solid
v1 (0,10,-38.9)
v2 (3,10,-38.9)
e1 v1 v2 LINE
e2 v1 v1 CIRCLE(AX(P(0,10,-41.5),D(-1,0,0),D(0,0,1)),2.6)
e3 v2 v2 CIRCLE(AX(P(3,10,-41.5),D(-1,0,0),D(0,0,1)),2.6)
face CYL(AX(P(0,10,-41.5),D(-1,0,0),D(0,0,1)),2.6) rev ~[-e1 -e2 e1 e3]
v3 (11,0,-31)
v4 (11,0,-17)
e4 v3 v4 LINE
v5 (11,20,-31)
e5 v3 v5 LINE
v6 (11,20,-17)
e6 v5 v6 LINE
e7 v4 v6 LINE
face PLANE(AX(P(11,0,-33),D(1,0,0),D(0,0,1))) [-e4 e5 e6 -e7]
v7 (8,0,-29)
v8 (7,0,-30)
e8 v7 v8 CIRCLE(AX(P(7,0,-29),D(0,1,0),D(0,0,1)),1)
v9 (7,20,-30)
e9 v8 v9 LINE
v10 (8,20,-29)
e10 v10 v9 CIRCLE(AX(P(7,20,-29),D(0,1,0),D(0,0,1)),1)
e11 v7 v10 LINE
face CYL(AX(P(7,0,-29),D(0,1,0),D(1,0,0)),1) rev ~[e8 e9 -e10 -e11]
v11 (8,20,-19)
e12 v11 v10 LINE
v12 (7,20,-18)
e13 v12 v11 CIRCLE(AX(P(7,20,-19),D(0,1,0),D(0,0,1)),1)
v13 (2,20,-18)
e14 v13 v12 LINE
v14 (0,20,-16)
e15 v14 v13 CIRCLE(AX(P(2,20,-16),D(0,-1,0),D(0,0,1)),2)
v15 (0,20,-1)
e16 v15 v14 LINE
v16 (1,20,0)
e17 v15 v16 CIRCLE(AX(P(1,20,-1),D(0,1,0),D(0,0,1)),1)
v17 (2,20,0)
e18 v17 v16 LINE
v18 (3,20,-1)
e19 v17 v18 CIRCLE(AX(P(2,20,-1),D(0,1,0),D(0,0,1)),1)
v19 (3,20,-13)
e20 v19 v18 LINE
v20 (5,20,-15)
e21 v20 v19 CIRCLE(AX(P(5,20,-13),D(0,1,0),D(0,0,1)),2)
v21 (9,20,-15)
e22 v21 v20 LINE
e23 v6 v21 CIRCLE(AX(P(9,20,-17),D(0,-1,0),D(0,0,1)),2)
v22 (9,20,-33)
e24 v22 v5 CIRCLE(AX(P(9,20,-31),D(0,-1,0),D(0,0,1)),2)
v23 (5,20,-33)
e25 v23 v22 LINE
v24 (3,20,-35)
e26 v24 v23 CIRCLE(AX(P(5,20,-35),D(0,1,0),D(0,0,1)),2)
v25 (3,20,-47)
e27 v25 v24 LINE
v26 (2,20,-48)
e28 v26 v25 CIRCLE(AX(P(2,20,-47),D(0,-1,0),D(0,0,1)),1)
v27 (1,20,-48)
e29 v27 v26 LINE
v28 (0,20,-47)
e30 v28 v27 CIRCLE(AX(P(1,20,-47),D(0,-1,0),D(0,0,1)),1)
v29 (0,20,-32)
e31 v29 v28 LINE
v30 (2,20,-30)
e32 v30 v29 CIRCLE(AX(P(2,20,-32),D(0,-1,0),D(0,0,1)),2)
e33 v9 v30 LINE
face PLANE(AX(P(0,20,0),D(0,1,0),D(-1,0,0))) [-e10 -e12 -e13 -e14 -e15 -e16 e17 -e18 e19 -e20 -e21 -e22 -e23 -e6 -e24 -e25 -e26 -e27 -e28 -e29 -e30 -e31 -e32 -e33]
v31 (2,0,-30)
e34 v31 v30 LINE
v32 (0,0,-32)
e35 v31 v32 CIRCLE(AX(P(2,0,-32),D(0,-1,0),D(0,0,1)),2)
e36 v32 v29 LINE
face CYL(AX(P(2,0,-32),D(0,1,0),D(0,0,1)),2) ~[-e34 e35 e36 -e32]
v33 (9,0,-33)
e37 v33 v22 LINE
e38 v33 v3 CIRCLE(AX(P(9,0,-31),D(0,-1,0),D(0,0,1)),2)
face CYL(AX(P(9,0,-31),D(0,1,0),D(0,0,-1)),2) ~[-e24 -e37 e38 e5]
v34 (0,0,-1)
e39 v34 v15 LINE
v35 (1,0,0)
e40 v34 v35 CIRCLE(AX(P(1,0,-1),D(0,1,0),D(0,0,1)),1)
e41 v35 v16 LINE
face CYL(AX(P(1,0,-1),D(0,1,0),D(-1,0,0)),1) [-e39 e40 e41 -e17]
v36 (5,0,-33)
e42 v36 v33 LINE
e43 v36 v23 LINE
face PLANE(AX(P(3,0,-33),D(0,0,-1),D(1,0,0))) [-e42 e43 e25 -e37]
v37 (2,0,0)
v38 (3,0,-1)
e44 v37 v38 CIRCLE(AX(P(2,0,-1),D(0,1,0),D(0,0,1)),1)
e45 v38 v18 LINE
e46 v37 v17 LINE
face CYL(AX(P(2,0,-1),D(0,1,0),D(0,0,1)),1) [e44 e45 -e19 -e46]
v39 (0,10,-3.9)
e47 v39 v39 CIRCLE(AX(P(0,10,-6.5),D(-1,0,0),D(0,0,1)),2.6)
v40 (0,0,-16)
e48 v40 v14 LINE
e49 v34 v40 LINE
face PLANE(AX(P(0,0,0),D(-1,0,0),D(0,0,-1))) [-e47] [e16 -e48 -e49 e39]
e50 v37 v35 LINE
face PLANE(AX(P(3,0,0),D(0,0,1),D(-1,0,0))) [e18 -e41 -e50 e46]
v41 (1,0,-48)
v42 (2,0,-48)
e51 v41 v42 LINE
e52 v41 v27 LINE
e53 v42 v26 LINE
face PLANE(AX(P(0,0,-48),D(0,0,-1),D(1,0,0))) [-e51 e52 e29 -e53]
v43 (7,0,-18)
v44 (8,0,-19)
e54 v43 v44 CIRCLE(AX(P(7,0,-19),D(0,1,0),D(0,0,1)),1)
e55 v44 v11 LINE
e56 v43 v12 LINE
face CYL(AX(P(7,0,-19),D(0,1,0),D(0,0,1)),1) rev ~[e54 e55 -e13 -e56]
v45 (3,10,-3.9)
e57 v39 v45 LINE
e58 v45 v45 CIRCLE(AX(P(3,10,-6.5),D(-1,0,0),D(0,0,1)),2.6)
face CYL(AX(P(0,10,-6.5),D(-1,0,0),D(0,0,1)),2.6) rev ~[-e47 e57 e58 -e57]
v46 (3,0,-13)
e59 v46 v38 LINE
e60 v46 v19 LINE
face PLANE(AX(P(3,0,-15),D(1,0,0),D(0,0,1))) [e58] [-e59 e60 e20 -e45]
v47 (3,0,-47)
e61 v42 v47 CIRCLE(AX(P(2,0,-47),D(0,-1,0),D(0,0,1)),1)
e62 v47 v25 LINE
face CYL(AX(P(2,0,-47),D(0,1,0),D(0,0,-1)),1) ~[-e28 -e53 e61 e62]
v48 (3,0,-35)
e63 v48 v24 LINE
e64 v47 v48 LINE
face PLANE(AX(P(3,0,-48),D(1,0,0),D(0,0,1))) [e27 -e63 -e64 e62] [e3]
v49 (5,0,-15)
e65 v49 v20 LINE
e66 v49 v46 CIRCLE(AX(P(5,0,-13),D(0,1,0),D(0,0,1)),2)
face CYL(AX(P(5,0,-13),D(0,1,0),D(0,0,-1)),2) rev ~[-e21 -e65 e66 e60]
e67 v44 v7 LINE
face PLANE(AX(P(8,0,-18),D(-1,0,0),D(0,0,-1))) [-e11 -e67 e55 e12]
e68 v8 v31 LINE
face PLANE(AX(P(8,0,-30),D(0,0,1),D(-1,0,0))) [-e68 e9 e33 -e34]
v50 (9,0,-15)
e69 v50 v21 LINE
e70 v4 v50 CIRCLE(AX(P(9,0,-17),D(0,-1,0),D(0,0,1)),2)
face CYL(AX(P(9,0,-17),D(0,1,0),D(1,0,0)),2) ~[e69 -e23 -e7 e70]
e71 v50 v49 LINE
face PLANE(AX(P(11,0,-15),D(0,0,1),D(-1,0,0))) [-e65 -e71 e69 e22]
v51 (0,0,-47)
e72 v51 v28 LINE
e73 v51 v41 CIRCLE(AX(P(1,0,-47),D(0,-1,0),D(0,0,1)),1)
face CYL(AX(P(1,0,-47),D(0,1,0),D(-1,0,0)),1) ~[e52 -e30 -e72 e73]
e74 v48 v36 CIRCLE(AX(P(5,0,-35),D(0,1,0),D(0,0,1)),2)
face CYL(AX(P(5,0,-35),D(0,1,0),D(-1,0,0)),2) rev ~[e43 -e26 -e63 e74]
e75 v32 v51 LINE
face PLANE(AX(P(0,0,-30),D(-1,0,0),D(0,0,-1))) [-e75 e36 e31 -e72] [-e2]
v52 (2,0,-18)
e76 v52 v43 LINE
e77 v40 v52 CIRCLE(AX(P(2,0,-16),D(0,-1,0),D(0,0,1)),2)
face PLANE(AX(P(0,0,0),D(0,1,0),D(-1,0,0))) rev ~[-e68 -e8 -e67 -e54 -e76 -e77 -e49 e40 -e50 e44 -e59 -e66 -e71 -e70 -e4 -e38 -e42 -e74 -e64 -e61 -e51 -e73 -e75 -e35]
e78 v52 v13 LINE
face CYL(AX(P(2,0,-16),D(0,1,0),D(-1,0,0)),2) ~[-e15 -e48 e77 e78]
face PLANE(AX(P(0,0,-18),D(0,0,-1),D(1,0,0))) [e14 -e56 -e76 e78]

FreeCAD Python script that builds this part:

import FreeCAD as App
import Part
import Sketcher
from FreeCAD import Vector


def edges_at(feature, points):
    """Names of the edges that pass closest to the given points."""
    edges = feature.Shape.Edges
    near = lambda p: min(range(len(edges)), key=lambda i: edges[i].distToShape(Part.Vertex(*p))[0])
    return sorted({f"Edge{near(p) + 1}" for p in points})


def add_polygon(sketch, points):
    """Adds a closed chain of lines whose ends are joined by coincident constraints."""
    first, n = sketch.GeometryCount, len(points)
    for a, b in zip(points, points[1:] + points[:1]):
        sketch.addGeometry(Part.LineSegment(App.Vector(*a, 0), App.Vector(*b, 0)), False)
    for i in range(n):
        sketch.addConstraint(Sketcher.Constraint("Coincident", first + i, 2, first + (i + 1) % n, 1))

doc = App.newDocument("Part")
body = doc.addObject("PartDesign::Body", "Body")

sketch1 = body.newObject("Sketcher::SketchObject", "Sketch")
sketch1.AttachmentSupport = (doc.getObject("XZ_Plane"), [""])
sketch1.MapMode = "FlatFace"
add_polygon(sketch1, [(0, -18), (0, 0), (3, 0), (3, -15), (11, -15), (11, -33), (3, -33), (3, -48), (0, -48), (0, -30), (8, -30), (8, -18)])
sketch1.addConstraint([
    Sketcher.Constraint("Vertical", 0),
    Sketcher.Constraint("Horizontal", 1),
    Sketcher.Constraint("Vertical", 2),
    Sketcher.Constraint("Horizontal", 3),
    Sketcher.Constraint("Vertical", 4),
    Sketcher.Constraint("Horizontal", 5),
    Sketcher.Constraint("Vertical", 6),
    Sketcher.Constraint("Horizontal", 7),
    Sketcher.Constraint("Vertical", 8),
    Sketcher.Constraint("Horizontal", 9),
    Sketcher.Constraint("Vertical", 10),
    Sketcher.Constraint("Horizontal", 11),
    Sketcher.Constraint("Coincident", 0, 2, -1, 1),
    Sketcher.Constraint("PointOnObject", 7, 2, -2),
    Sketcher.Constraint("Vertical", 2, 2, 5, 2),
    Sketcher.Constraint("Equal", 5, 9),
    Sketcher.Constraint("Equal", 0, 4),
    Sketcher.Constraint("Equal", 2, 6),
    Sketcher.Constraint("Equal", 4, 8),
    Sketcher.Constraint("DistanceX", 1, 1, 1, 2, 3.0),
    Sketcher.Constraint("DistanceX", 3, 1, 3, 2, 8.0),
    Sketcher.Constraint("DistanceY", 10, 1, 10, 2, 12.0),
    Sketcher.Constraint("DistanceY", 6, 2, -1, 1, 48.0),
])
pad1 = body.newObject("PartDesign::Pad", "Pad")
pad1.Profile = sketch1
pad1.Length = 20
pad1.Reversed = True
doc.recompute()

fillet = body.newObject("PartDesign::Fillet", "Fillet")
fillet.Base = (pad1, edges_at(pad1, [
    (11, 10, -15),
    (3, 10, -15),
    (11, 10, -33),
    (3, 10, -33),
    (0, 10, -18),
    (0, 10, -30),
]))
fillet.Radius = 2
doc.recompute()

fillet2 = body.newObject("PartDesign::Fillet", "Fillet001")
fillet2.Base = (fillet, edges_at(fillet, [
    (3, 10, 0),
    (0, 10, 0),
    (0, 10, -48),
    (3, 10, -48),
    (8, 10, -30),
    (8, 10, -18),
]))
fillet2.Radius = 1

sketch2 = body.newObject("Sketcher::SketchObject", "Sketch001")
sketch2.AttachmentSupport = (doc.getObject("YZ_Plane"), [""])
sketch2.MapMode = "FlatFace"
sketch2.addGeometry([
    Part.Circle(Vector(10, -41.5, 0), Vector(0, 0, 1), 2.6),
    Part.Circle(Vector(10, -6.5, 0), Vector(0, 0, 1), 2.6),
], False)
sketch2.addConstraint([
    Sketcher.Constraint("Equal", 0, 1),
    Sketcher.Constraint("Vertical", 0, 3, 1, 3),
    Sketcher.Constraint("Diameter", 0, 5.2),
    Sketcher.Constraint("DistanceX", -1, 1, 0, 3, 10.0),
    Sketcher.Constraint("DistanceY", 0, 3, 1, 3, 35.0),
    Sketcher.Constraint("DistanceY", 0, 3, -1, 1, 41.5),
])
pocket1 = body.newObject("PartDesign::Pocket", "Pocket")
pocket1.Profile = sketch2
pocket1.Length = 3
pocket1.Reversed = True

doc.recompute()
